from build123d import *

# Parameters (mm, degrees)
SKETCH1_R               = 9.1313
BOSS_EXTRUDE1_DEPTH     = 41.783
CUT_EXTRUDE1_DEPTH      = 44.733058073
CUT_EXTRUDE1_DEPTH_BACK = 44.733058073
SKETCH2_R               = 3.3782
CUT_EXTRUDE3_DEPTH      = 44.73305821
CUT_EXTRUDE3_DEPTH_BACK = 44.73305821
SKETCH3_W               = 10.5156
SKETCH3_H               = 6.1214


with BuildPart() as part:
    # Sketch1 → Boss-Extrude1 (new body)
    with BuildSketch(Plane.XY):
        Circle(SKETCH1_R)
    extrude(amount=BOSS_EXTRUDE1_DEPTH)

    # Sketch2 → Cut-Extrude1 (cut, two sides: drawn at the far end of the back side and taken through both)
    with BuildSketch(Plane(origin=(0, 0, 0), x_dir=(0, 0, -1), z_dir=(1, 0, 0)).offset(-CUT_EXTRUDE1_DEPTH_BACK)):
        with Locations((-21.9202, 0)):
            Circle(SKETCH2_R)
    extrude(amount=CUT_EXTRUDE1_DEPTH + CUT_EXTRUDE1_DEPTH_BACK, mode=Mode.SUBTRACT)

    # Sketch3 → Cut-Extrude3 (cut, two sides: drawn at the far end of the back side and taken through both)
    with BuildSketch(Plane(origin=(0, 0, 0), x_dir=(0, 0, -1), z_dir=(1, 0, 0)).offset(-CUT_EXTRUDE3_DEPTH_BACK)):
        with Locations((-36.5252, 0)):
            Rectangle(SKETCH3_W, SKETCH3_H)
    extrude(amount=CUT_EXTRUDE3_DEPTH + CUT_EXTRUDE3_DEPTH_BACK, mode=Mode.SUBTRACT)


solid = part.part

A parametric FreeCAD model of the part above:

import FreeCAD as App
import Part
import Sketcher
from FreeCAD import Vector
Q = App.Units.Quantity


def add_polygon(sketch, points):
    """Adds a closed chain of lines whose ends are joined by coincident constraints."""
    first, n = sketch.GeometryCount, len(points)
    for a, b in zip(points, points[1:] + points[:1]):
        sketch.addGeometry(Part.LineSegment(App.Vector(*a, 0), App.Vector(*b, 0)), False)
    for i in range(n):
        sketch.addConstraint(Sketcher.Constraint("Coincident", first + i, 2, first + (i + 1) % n, 1))

doc = App.newDocument("Part")
body = doc.addObject("PartDesign::Body", "Body")

# Sketch on XY plane
sketch1 = doc.addObject("Sketcher::SketchObject", "Sketch")
body.addObject(sketch1)
sketch1.AttachmentSupport = (doc.XY_Plane, [""])
sketch1.MapMode = "FlatFace"
sketch1.addGeometry(Part.Circle(Vector(0, 0, 0), Vector(0, 0, 1), 9), False)
sketch1.addConstraint([
    Sketcher.Constraint("Coincident", 0, 3, -1, 1),
    Sketcher.Constraint("Diameter", 0, Q("0.719 in")),
])
pad1 = doc.addObject("PartDesign::Pad", "Pad")
body.addObject(pad1)
pad1.Profile = sketch1
pad1.Length = Q("1.645 in")

# Sketch on YZ plane
sketch2 = doc.addObject("Sketcher::SketchObject", "Sketch001")
body.addObject(sketch2)
sketch2.AttachmentSupport = (doc.YZ_Plane, [""])
sketch2.MapMode = "FlatFace"
sketch2.addGeometry(Part.Circle(Vector(0, 21.9, 0), Vector(0, 0, 1), 3.4), False)
sketch2.addConstraint([
    Sketcher.Constraint("PointOnObject", 0, 3, -2),
    Sketcher.Constraint("Diameter", 0, Q("0.266 in")),
    Sketcher.Constraint("DistanceY", -1, 1, 0, 3, Q("0.863 in")),
])
pocket1 = doc.addObject("PartDesign::Pocket", "Pocket")
body.addObject(pocket1)
pocket1.Profile = sketch2
pocket1.Type = "ThroughAll"
pocket1.Midplane = True

# Sketch on YZ plane
sketch3 = doc.addObject("Sketcher::SketchObject", "Sketch002")
body.addObject(sketch3)
sketch3.AttachmentSupport = (doc.YZ_Plane, [""])
sketch3.MapMode = "FlatFace"
add_polygon(sketch3, [(3, 42), (-3, 42), (-3, 31), (3, 31)])  # lines 0-3
sketch3.addConstraint([
    Sketcher.Constraint("Horizontal", 0),
    Sketcher.Constraint("Vertical", 1),
    Sketcher.Constraint("Horizontal", 2),
    Sketcher.Constraint("Vertical", 3),
    Sketcher.Constraint("DistanceX", 0, 2, 0, 1, Q("0.241 in")),
    Sketcher.Constraint("DistanceY", 1, 2, 1, 1, Q("0.414 in")),
    Sketcher.Constraint("DistanceY", -1, 1, 0, 2, Q("1.645 in")),
    Sketcher.Constraint("DistanceX", 0, 2, -1, 1, Q("0.1205 in")),
])
pocket2 = doc.addObject("PartDesign::Pocket", "Pocket001")
body.addObject(pocket2)
pocket2.Profile = sketch3
pocket2.Type = "ThroughAll"
pocket2.Midplane = True

doc.recompute()
